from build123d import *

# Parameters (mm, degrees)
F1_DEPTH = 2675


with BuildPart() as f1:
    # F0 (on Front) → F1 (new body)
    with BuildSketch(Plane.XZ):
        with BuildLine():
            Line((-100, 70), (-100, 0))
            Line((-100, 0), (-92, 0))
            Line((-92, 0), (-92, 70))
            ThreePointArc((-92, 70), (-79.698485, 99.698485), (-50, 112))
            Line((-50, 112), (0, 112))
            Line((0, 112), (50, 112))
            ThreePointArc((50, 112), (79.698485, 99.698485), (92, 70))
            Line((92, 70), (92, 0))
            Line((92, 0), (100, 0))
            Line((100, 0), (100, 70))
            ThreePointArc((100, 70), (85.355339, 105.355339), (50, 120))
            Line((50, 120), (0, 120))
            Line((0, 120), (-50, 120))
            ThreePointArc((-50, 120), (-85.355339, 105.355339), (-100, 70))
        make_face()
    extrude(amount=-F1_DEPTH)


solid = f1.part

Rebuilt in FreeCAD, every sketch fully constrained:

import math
import FreeCAD as App
import Part
import Sketcher
from FreeCAD import Vector
Q = App.Units.Quantity

doc = App.newDocument("Part")
params = doc.addObject("Spreadsheet::Sheet", "Params")
for row, (alias, value) in enumerate([
    ("sketch1_radius", "41.999999 mm"),
    ("sketch1_radius2", "50 mm"),
    ("sketch1_width", "100 mm"),
    ("sketch1_height", "70 mm"),
    ("pad1_length", "2675 mm"),
], start=1):
    params.set(f"A{row}", alias)
    params.set(f"B{row}", "=" + value)
    params.setAlias(f"B{row}", alias)

body = doc.addObject("PartDesign::Body", "Body")

sketch1 = body.newObject("Sketcher::SketchObject", "Sketch")
sketch1.AttachmentSupport = (doc.getObject("XZ_Plane"), [""])
sketch1.MapMode = "FlatFace"
sketch1.addGeometry([
    Part.LineSegment(Vector(-100, 70, 0), Vector(-100, 0, 0)),
    Part.LineSegment(Vector(-100, 0, 0), Vector(-92, 0, 0)),
    Part.LineSegment(Vector(-92, 0, 0), Vector(-92, 70, 0)),
    Part.ArcOfCircle(Part.Circle(Vector(-50, 70, 0), Vector(0, 0, 1), 42), math.radians(90), math.radians(180)),
    Part.LineSegment(Vector(-50, 112, 0), Vector(50, 112, 0)),
    Part.ArcOfCircle(Part.Circle(Vector(50, 70, 0), Vector(0, 0, 1), 42), math.radians(0), math.radians(90)),
    Part.LineSegment(Vector(92, 70, 0), Vector(92, 0, 0)),
    Part.LineSegment(Vector(92, 0, 0), Vector(100, 0, 0)),
    Part.LineSegment(Vector(100, 0, 0), Vector(100, 70, 0)),
    Part.ArcOfCircle(Part.Circle(Vector(50, 70, 0), Vector(0, 0, 1), 50), math.radians(0), math.radians(90)),
    Part.LineSegment(Vector(50, 120, 0), Vector(-50, 120, 0)),
    Part.ArcOfCircle(Part.Circle(Vector(-50, 70, 0), Vector(0, 0, 1), 50), math.radians(90), math.radians(180)),
], False)
sketch1.addConstraint([
    Sketcher.Constraint("Coincident", 0, 2, 1, 1),
    Sketcher.Constraint("Coincident", 1, 2, 2, 1),
    Sketcher.Constraint("Tangent", 2, 2, 3, 2),
    Sketcher.Constraint("Tangent", 3, 1, 4, 1),
    Sketcher.Constraint("Tangent", 4, 2, 5, 2),
    Sketcher.Constraint("Tangent", 5, 1, 6, 1),
    Sketcher.Constraint("Coincident", 6, 2, 7, 1),
    Sketcher.Constraint("Coincident", 7, 2, 8, 1),
    Sketcher.Constraint("Tangent", 8, 2, 9, 1),
    Sketcher.Constraint("Tangent", 9, 2, 10, 1),
    Sketcher.Constraint("Tangent", 10, 2, 11, 1),
    Sketcher.Constraint("Tangent", 11, 2, 0, 1),
    Sketcher.Constraint("Vertical", 0),
    Sketcher.Constraint("Horizontal", 1),
    Sketcher.Constraint("Vertical", 2),
    Sketcher.Constraint("Horizontal", 4),
    Sketcher.Constraint("Vertical", 6),
    Sketcher.Constraint("Horizontal", 7),
    Sketcher.Constraint("Vertical", 8),
    Sketcher.Constraint("Horizontal", 10),
    Sketcher.Constraint("Coincident", 9, 3, 5, 3),
    Sketcher.Constraint("Coincident", 11, 3, 3, 3),
    Sketcher.Constraint("Equal", 3, 5),
    Sketcher.Constraint("Symmetric", 1, 2, 6, 2, -1, 1),
    Sketcher.Constraint("PointOnObject", 0, 2, -1),
    Sketcher.Constraint("Radius", 3, Q("41.999999 mm")),
    Sketcher.Constraint("Radius", 9, Q("50 mm")),
    Sketcher.Constraint("DistanceX", 4, 1, 4, 2, Q("100 mm")),
    Sketcher.Constraint("DistanceY", 0, 2, 0, 1, Q("70 mm")),
])
sketch1.setExpression("Constraints[25]", "Params.sketch1_radius")
sketch1.setExpression("Constraints[26]", "Params.sketch1_radius2")
sketch1.setExpression("Constraints[27]", "Params.sketch1_width")
sketch1.setExpression("Constraints[28]", "Params.sketch1_height")
pad1 = body.newObject("PartDesign::Pad", "Pad")
pad1.Profile = sketch1
pad1.setExpression("Length", "Params.pad1_length")
pad1.Reversed = True

doc.recompute()
